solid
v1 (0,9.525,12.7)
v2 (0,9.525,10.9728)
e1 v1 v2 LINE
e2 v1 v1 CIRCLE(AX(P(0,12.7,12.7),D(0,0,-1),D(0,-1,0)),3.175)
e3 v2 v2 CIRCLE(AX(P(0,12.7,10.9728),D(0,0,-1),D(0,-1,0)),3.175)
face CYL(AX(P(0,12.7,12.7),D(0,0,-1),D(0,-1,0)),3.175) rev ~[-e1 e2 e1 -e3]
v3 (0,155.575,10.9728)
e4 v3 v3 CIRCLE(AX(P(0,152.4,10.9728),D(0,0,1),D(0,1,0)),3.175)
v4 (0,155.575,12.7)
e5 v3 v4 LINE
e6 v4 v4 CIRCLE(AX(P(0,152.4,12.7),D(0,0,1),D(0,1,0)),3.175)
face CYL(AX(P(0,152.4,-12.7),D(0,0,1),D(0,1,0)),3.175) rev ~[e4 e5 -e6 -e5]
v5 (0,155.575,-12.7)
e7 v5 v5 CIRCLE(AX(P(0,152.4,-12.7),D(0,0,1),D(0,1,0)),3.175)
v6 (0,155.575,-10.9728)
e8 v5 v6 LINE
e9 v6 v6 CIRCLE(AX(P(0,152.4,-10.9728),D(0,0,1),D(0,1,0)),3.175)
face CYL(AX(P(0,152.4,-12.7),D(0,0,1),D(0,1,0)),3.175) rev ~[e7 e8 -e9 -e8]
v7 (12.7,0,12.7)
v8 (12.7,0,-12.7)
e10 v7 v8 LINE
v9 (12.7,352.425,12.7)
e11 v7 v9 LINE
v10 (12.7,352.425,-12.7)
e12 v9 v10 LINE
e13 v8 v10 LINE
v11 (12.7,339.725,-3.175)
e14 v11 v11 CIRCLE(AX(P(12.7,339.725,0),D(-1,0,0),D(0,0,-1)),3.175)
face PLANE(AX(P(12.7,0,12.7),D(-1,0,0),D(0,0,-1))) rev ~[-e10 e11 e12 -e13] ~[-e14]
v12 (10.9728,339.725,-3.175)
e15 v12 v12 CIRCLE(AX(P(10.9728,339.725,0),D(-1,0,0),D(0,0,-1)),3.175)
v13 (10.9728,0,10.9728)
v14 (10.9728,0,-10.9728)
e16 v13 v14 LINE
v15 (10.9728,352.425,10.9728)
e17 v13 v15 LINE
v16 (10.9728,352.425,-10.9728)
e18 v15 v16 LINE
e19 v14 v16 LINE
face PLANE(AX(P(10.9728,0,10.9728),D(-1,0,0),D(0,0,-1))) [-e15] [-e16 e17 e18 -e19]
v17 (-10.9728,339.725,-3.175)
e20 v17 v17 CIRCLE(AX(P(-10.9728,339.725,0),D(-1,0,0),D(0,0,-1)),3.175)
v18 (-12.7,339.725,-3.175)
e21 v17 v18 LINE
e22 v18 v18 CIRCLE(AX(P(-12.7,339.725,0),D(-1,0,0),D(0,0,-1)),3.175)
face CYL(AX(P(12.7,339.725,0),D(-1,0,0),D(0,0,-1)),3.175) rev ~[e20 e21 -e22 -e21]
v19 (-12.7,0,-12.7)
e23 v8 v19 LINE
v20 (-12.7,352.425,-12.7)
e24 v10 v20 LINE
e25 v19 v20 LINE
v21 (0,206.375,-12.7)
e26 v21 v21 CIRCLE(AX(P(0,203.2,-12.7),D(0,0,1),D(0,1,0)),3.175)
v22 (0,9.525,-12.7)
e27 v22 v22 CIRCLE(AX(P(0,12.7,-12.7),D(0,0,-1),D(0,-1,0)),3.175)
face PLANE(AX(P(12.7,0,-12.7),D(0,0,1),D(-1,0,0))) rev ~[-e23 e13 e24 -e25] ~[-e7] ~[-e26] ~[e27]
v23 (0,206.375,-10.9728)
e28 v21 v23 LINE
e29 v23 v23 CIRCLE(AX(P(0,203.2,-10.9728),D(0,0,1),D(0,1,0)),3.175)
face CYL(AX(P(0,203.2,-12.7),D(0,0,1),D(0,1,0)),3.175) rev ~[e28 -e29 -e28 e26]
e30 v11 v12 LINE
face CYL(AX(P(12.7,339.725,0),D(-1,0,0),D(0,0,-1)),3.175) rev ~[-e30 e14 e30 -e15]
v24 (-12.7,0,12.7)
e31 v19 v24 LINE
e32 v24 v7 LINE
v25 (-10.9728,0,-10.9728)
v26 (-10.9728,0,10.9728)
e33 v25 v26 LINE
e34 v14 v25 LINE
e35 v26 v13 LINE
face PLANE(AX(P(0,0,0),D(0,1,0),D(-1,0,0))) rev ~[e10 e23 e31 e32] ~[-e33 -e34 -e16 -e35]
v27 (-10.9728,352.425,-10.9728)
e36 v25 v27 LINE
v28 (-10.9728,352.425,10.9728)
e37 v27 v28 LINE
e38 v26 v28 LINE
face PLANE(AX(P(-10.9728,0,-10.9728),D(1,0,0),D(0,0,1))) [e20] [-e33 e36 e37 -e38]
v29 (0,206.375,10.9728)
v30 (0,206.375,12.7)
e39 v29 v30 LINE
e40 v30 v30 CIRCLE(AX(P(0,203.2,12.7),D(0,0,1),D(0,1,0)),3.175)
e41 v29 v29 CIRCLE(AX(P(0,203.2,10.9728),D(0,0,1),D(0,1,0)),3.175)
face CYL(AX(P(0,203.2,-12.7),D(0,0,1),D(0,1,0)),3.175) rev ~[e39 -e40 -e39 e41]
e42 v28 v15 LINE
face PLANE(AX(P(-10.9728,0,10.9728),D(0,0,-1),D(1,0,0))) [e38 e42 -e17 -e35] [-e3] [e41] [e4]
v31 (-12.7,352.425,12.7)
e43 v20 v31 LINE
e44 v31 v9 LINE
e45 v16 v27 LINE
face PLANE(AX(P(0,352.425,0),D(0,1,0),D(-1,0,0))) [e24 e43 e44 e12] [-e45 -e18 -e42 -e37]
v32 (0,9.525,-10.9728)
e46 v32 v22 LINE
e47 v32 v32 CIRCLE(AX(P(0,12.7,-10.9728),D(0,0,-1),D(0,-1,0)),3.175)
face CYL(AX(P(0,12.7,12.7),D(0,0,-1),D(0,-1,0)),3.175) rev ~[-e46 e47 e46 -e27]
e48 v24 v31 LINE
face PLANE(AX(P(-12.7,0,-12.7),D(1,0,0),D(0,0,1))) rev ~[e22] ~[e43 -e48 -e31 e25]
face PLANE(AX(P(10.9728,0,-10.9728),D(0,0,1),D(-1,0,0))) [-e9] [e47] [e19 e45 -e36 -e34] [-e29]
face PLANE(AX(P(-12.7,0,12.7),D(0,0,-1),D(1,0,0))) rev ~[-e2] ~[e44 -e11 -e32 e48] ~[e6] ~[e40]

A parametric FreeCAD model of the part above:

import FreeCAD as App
import Part
import Sketcher

V = App.Vector
Q = App.Units.Quantity

doc = App.newDocument("Part")
body = doc.addObject("PartDesign::Body", "Body")

# Sketch on XZ plane
sketch1 = body.newObject("Sketcher::SketchObject", "Sketch")
sketch1.AttachmentSupport = (doc.getObject("XZ_Plane"), [""])
sketch1.MapMode = "FlatFace"
sketch1.addGeometry([
    Part.LineSegment(V(13, 13, 0), V(13, -13, 0)),  # 0
    Part.LineSegment(V(13, -13, 0), V(-13, -13, 0)),  # 1
    Part.LineSegment(V(-13, -13, 0), V(-13, 13, 0)),  # 2
    Part.LineSegment(V(-13, 13, 0), V(13, 13, 0)),  # 3
    Part.LineSegment(V(-11, -11, 0), V(11, -11, 0)),  # 4
    Part.LineSegment(V(11, -11, 0), V(11, 11, 0)),  # 5
    Part.LineSegment(V(11, 11, 0), V(-11, 11, 0)),  # 6
    Part.LineSegment(V(-11, 11, 0), V(-11, -11, 0)),  # 7
], False)
sketch1.addConstraint([
    Sketcher.Constraint("Coincident", 0, 2, 1, 1),
    Sketcher.Constraint("Coincident", 1, 2, 2, 1),
    Sketcher.Constraint("Coincident", 2, 2, 3, 1),
    Sketcher.Constraint("Coincident", 3, 2, 0, 1),
    Sketcher.Constraint("Coincident", 4, 2, 5, 1),
    Sketcher.Constraint("Coincident", 5, 2, 6, 1),
    Sketcher.Constraint("Coincident", 6, 2, 7, 1),
    Sketcher.Constraint("Coincident", 7, 2, 4, 1),
    Sketcher.Constraint("Vertical", 0),
    Sketcher.Constraint("Horizontal", 1),
    Sketcher.Constraint("Vertical", 2),
    Sketcher.Constraint("Horizontal", 3),
    Sketcher.Constraint("Horizontal", 4),
    Sketcher.Constraint("Vertical", 5),
    Sketcher.Constraint("Horizontal", 6),
    Sketcher.Constraint("Vertical", 7),
    Sketcher.Constraint("Symmetric", 0, 2, 2, 2, -1, 1),
    Sketcher.Constraint("Symmetric", 4, 2, 6, 2, -1, 1),
    Sketcher.Constraint("Equal", 3, 0),
    Sketcher.Constraint("Equal", 6, 5),
    Sketcher.Constraint("DistanceX", 1, 2, 1, 1, Q("1 in")),
    Sketcher.Constraint("DistanceX", 4, 2, 0, 2, Q("0.068 in")),
])
pad1 = body.newObject("PartDesign::Pad", "Pad")
pad1.Profile = sketch1
pad1.Length = Q("13.875 in")
pad1.Reversed = True

# Sketch on YZ plane
sketch2 = body.newObject("Sketcher::SketchObject", "Sketch001")
sketch2.AttachmentSupport = (doc.getObject("YZ_Plane"), [""])
sketch2.MapMode = "FlatFace"
sketch2.AttachmentOffset = App.Placement(V(0, 0, 0.5 * 25.4), App.Rotation())
sketch2.addGeometry(Part.Circle(V(339.7, 0, 0), V(0, 0, 1), 3.2), False)
sketch2.addConstraint([
    Sketcher.Constraint("PointOnObject", 0, 3, -1),
    Sketcher.Constraint("Diameter", 0, Q("0.25 in")),
    Sketcher.Constraint("DistanceX", -1, 1, 0, 3, Q("13.375 in")),
])
doc.recompute()
hole = body.newObject("PartDesign::Hole", "Hole")
hole.Profile = sketch2
hole.ThreadType = "None"
hole.Diameter = Q("0.25 in")
hole.DepthType = "ThroughAll"

# Sketch on XY plane
sketch3 = body.newObject("Sketcher::SketchObject", "Sketch002")
sketch3.AttachmentSupport = (doc.getObject("XY_Plane"), [""])
sketch3.MapMode = "FlatFace"
sketch3.AttachmentOffset = App.Placement(V(0, 0, 0.5 * 25.4), App.Rotation())
sketch3.addGeometry(Part.Circle(V(0, 12.7, 0), V(0, 0, 1), 3.2), False)
sketch3.addConstraint([
    Sketcher.Constraint("PointOnObject", 0, 3, -2),
    Sketcher.Constraint("Diameter", 0, Q("0.25 in")),
    Sketcher.Constraint("DistanceY", -1, 1, 0, 3, Q("0.5 in")),
])
doc.recompute()
hole2 = body.newObject("PartDesign::Hole", "Hole001")
hole2.Profile = sketch3
hole2.ThreadType = "None"
hole2.Diameter = Q("0.25 in")
hole2.DepthType = "ThroughAll"

# Sketch on XY plane
sketch4 = body.newObject("Sketcher::SketchObject", "Sketch003")
sketch4.AttachmentSupport = (doc.getObject("XY_Plane"), [""])
sketch4.MapMode = "FlatFace"
sketch4.AttachmentOffset = App.Placement(V(0, 0, -0.5 * 25.4), App.Rotation())
sketch4.addGeometry([
    Part.Circle(V(0, 203.2, 0), V(0, 0, 1), 3.2),
    Part.Circle(V(0, 152.4, 0), V(0, 0, 1), 3.2),
], False)
sketch4.addConstraint([
    Sketcher.Constraint("Equal", 0, 1),
    Sketcher.Constraint("PointOnObject", 0, 3, -2),
    Sketcher.Constraint("PointOnObject", 1, 3, -2),
    Sketcher.Constraint("Diameter", 0, Q("0.25 in")),
    Sketcher.Constraint("DistanceY", -1, 1, 0, 3, Q("8 in")),
    Sketcher.Constraint("DistanceY", -1, 1, 1, 3, Q("6 in")),
])
doc.recompute()
hole3 = body.newObject("PartDesign::Hole", "Hole002")
hole3.Profile = sketch4
hole3.ThreadType = "None"
hole3.Diameter = Q("0.25 in")
hole3.DepthType = "ThroughAll"
hole3.Reversed = True

doc.recompute()
